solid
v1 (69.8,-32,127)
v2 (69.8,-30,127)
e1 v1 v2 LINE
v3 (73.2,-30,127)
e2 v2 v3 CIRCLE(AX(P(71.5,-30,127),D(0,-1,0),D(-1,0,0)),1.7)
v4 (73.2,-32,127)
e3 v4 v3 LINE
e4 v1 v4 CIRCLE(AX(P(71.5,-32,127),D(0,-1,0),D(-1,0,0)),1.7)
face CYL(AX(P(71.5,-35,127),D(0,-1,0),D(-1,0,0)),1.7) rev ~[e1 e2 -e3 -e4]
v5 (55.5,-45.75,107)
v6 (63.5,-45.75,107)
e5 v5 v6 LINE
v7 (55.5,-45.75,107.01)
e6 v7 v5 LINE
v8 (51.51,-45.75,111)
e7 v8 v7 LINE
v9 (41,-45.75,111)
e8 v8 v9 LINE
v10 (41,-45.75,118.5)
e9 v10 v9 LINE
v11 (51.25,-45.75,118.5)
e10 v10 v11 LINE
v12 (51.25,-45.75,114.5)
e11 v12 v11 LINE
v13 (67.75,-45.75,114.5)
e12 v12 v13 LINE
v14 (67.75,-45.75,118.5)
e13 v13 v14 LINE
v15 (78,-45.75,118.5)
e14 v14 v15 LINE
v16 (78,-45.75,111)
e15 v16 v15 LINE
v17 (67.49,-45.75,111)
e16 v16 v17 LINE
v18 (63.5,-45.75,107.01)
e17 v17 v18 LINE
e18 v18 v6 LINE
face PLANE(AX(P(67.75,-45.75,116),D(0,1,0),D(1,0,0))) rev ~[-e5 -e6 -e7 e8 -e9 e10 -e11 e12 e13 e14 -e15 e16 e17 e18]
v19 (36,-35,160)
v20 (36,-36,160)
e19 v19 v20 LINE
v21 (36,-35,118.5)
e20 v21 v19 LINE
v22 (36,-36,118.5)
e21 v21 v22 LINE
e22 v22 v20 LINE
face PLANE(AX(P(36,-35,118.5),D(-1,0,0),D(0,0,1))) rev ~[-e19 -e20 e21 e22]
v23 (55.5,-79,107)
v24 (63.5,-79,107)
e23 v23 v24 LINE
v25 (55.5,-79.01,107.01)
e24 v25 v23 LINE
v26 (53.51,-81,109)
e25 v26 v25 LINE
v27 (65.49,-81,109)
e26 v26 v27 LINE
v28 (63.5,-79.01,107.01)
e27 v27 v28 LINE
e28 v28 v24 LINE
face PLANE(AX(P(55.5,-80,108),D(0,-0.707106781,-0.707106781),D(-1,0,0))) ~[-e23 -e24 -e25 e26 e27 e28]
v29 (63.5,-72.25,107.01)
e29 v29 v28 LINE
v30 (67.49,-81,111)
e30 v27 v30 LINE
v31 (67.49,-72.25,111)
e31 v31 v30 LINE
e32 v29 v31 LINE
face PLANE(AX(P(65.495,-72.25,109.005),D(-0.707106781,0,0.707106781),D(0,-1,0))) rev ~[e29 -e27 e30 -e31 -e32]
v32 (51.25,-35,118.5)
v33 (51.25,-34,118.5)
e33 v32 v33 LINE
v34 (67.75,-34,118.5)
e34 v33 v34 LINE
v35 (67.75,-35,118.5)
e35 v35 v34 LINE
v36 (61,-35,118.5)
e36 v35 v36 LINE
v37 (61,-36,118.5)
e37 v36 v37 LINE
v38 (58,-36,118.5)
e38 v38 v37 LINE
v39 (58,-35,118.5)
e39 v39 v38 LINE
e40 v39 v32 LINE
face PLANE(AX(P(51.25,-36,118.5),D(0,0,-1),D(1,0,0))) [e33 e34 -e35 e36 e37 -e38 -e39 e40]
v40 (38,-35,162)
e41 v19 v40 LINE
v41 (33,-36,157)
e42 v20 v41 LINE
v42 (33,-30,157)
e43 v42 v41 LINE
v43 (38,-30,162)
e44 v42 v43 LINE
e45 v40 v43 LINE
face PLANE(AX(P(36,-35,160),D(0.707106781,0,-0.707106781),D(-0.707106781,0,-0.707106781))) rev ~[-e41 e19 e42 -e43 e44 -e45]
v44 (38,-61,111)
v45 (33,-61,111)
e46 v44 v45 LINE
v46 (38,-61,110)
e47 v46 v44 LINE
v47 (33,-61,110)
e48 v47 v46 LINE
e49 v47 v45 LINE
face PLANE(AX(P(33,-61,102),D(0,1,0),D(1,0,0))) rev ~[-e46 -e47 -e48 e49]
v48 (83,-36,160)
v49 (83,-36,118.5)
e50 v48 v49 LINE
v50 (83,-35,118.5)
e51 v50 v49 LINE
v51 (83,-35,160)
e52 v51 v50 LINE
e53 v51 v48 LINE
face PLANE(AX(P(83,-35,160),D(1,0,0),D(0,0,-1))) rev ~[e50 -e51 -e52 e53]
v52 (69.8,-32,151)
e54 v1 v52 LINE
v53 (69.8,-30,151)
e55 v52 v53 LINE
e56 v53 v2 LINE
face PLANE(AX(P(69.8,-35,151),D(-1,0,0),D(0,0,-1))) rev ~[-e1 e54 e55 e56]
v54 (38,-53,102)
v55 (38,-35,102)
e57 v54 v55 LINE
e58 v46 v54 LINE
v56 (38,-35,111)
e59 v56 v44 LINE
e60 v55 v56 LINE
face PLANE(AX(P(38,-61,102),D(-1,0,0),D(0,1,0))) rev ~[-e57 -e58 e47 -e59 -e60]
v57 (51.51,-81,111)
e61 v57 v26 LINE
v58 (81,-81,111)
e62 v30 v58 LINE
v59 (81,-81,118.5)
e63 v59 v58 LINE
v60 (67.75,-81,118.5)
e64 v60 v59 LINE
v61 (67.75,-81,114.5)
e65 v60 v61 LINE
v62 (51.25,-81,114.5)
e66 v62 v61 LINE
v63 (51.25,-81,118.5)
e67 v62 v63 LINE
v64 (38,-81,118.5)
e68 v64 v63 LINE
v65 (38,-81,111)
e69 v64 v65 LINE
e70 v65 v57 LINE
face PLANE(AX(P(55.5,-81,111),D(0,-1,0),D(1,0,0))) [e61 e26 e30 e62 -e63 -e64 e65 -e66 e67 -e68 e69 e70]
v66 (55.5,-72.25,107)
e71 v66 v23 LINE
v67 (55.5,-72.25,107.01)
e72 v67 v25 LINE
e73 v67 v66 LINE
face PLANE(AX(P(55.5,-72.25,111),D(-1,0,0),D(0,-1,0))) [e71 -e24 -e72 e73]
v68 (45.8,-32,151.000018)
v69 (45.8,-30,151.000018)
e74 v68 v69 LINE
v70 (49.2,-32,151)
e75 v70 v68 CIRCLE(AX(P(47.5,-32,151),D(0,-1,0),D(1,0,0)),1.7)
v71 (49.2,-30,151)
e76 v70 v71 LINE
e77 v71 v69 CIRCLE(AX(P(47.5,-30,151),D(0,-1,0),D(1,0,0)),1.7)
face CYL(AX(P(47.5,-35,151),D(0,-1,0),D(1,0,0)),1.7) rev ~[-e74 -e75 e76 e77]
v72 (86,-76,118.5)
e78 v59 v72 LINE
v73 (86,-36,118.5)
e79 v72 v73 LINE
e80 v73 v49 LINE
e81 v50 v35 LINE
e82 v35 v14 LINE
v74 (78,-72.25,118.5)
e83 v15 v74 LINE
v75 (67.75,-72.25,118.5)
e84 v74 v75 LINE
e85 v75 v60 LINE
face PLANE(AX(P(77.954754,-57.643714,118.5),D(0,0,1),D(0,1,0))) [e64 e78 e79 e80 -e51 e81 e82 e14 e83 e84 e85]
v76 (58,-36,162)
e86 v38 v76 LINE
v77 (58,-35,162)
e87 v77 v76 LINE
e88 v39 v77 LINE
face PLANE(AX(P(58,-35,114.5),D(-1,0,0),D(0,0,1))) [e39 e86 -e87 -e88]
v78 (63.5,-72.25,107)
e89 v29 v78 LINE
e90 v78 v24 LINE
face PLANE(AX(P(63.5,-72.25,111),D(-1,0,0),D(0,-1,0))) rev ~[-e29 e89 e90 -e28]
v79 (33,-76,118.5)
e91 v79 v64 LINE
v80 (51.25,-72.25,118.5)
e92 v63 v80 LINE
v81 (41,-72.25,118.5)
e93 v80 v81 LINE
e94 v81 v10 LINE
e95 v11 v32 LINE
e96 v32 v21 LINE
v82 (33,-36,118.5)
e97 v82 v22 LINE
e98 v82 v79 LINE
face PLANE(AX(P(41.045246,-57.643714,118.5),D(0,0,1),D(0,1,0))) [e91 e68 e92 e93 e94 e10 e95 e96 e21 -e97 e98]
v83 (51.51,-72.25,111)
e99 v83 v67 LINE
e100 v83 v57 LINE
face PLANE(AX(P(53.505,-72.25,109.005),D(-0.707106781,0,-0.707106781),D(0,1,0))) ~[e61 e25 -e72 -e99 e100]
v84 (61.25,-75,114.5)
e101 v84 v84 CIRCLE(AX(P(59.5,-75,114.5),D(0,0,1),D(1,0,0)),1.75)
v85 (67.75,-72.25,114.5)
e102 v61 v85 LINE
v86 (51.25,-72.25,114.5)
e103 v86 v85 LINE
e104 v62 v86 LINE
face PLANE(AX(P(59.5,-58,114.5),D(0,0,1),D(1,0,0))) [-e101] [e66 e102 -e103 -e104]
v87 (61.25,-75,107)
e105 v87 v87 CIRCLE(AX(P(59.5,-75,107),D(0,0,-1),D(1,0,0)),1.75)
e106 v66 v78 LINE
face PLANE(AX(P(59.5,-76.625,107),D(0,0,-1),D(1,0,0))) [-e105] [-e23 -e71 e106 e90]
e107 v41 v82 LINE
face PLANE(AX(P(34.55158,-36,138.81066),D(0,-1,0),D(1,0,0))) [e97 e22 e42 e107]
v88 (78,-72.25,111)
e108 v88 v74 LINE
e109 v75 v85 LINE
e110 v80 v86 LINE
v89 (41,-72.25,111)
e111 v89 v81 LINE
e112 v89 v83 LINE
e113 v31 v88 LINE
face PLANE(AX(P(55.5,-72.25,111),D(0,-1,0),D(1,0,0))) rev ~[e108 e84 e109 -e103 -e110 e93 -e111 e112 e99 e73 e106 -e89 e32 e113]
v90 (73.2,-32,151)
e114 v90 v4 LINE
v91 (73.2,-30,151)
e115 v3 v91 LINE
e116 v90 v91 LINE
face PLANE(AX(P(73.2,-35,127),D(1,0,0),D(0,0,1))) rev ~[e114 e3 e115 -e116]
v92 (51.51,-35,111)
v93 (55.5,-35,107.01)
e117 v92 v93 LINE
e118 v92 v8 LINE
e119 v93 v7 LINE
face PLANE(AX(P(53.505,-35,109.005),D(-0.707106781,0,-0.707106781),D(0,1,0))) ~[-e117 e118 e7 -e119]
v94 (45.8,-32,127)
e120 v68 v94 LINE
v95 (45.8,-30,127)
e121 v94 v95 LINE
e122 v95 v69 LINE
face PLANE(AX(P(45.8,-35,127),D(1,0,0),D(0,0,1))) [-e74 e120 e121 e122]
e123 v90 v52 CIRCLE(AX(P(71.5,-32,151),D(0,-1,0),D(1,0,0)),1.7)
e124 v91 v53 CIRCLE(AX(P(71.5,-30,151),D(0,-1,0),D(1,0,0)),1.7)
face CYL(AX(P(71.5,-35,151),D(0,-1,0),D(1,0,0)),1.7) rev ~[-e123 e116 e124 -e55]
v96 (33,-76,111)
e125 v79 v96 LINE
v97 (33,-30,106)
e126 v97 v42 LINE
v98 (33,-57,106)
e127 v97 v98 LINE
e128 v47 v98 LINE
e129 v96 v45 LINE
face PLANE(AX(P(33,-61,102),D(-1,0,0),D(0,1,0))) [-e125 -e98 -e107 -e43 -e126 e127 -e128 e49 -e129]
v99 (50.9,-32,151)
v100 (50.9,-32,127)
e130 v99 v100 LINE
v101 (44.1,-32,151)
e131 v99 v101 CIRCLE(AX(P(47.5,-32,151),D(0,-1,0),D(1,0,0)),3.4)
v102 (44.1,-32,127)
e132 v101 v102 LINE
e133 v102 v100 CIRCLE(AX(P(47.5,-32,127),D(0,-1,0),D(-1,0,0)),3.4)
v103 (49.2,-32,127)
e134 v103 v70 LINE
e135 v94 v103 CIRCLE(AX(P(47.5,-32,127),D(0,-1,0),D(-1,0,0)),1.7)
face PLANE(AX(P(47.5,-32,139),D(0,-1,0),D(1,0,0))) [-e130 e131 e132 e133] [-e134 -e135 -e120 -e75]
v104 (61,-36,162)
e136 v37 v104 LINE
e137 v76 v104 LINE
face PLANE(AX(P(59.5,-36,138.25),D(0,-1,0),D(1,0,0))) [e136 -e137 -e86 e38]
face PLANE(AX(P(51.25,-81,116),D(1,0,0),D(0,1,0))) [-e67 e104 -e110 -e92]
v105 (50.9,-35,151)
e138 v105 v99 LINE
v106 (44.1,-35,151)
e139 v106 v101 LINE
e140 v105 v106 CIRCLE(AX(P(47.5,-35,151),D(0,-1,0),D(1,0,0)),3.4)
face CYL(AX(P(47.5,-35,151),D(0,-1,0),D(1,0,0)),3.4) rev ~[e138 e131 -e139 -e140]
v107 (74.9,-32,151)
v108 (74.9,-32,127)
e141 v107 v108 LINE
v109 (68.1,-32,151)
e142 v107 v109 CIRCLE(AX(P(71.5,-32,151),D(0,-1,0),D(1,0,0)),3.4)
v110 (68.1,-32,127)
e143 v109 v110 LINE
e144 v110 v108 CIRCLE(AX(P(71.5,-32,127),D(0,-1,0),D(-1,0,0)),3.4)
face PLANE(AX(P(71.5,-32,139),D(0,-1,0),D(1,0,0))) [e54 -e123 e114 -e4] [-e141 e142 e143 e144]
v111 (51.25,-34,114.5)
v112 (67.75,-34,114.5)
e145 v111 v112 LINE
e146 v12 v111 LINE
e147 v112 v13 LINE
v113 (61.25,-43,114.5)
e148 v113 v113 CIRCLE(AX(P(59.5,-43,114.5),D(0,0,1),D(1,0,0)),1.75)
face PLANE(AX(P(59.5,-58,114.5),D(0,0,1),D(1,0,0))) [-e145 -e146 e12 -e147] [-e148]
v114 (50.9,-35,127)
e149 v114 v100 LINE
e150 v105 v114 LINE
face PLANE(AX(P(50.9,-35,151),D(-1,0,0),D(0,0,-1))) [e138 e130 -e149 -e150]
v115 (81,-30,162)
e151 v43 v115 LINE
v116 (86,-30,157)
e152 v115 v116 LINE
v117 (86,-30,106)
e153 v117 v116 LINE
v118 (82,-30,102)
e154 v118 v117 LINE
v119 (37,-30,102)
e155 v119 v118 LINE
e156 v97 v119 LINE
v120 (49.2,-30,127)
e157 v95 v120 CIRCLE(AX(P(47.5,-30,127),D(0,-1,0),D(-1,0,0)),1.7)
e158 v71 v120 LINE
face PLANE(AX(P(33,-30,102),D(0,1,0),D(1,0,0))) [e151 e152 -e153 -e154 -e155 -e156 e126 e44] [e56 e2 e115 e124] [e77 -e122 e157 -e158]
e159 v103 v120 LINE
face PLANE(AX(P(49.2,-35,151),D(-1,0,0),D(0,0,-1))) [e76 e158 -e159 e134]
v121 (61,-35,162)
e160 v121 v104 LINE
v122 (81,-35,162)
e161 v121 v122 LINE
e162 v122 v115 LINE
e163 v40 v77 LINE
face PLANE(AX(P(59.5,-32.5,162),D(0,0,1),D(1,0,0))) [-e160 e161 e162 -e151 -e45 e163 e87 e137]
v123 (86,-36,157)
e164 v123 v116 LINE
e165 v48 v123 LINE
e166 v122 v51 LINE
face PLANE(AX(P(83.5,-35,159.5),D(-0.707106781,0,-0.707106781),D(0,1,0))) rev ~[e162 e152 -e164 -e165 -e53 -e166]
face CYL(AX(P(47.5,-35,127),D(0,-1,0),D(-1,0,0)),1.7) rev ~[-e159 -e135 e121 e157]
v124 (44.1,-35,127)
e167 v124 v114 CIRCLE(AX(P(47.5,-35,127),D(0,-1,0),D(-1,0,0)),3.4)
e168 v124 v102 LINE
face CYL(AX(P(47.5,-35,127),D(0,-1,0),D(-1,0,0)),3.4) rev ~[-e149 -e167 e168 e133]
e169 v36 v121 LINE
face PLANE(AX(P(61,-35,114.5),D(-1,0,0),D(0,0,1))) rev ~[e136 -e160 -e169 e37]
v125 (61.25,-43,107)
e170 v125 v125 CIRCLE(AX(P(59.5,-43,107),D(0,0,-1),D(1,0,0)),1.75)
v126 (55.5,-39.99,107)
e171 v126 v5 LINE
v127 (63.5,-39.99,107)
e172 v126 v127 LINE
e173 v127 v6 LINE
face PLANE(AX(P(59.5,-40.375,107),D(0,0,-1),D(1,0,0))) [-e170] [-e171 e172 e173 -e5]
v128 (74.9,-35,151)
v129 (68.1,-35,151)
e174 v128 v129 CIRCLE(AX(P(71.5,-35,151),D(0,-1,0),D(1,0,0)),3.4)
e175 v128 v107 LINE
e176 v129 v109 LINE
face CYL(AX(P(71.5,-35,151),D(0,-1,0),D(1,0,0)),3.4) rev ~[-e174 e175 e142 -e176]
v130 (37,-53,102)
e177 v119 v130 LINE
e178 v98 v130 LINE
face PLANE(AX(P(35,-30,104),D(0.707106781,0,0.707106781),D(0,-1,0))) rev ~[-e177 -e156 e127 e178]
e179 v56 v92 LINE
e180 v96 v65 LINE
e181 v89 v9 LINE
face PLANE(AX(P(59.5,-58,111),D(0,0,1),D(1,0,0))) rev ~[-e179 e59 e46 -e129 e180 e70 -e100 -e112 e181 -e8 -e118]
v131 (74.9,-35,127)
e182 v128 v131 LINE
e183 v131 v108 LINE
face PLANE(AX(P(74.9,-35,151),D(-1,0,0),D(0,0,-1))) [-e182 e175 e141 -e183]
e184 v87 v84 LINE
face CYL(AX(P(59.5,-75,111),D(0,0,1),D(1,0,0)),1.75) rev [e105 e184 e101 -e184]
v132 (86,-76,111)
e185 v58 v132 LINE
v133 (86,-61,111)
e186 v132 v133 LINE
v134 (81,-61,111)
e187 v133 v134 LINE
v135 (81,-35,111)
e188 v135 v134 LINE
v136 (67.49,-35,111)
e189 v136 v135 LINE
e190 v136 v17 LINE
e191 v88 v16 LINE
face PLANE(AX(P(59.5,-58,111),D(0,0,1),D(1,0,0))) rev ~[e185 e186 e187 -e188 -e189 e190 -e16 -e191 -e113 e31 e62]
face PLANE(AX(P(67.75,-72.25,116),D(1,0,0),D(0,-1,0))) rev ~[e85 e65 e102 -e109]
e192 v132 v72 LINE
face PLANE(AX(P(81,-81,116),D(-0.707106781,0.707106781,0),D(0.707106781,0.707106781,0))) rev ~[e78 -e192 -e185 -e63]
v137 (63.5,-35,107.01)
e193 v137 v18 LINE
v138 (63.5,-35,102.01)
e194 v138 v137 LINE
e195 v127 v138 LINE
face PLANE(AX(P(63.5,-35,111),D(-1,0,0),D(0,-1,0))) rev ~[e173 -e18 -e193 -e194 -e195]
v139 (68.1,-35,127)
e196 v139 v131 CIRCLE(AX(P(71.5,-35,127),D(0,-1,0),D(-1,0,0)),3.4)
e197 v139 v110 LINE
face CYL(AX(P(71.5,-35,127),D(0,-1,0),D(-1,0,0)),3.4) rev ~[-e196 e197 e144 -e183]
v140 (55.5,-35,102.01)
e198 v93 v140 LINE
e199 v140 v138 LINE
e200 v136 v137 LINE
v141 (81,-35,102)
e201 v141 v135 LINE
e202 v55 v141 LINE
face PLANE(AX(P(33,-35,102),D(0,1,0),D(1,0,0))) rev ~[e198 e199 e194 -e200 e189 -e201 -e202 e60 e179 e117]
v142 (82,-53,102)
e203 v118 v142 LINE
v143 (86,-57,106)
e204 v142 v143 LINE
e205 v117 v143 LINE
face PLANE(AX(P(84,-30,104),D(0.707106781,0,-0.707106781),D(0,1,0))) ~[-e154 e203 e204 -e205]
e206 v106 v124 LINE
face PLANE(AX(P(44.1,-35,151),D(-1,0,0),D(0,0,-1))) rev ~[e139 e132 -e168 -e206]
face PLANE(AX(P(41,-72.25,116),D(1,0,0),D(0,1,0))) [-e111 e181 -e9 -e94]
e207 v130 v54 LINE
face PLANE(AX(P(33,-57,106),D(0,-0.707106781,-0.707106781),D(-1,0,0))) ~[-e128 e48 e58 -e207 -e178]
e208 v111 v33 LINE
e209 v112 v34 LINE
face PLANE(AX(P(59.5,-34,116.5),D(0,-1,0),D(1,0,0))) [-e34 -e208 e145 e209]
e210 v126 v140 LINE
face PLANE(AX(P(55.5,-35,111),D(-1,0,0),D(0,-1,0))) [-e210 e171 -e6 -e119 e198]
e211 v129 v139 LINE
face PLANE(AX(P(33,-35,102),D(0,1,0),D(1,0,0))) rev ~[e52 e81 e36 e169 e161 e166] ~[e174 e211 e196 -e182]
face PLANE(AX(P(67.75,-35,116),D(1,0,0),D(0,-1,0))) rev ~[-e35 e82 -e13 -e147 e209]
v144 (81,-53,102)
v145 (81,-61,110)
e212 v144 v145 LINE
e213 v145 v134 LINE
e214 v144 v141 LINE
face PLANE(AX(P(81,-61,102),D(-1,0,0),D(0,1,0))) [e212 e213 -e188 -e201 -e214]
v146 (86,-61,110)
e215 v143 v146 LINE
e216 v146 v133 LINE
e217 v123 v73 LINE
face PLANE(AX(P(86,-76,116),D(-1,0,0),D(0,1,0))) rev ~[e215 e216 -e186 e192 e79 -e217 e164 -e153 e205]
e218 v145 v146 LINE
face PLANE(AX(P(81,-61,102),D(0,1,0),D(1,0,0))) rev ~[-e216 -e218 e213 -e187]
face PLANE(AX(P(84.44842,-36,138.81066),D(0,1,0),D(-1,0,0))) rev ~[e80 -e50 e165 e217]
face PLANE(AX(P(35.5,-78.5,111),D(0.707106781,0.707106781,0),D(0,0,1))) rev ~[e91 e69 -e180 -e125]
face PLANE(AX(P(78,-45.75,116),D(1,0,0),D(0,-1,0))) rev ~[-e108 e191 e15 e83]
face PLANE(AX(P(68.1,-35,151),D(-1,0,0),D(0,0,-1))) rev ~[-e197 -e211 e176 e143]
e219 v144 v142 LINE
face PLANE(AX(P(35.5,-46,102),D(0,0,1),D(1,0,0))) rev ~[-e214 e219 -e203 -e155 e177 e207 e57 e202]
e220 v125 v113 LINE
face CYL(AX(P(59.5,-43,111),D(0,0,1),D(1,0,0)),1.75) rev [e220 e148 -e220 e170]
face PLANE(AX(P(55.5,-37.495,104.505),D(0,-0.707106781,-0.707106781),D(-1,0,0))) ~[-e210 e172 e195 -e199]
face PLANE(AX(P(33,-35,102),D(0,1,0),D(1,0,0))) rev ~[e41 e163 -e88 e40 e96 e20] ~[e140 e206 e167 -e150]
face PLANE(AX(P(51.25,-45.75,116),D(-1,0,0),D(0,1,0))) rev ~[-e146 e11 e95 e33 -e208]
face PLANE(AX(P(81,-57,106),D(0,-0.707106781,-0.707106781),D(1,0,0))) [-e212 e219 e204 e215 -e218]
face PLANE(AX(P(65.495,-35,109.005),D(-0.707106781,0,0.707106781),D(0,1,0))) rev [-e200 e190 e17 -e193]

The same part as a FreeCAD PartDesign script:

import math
import FreeCAD as App
import Part
import Sketcher
from FreeCAD import Vector
Q = App.Units.Quantity


def edges_at(feature, points):
    """Names of the edges that pass closest to the given points."""
    edges = feature.Shape.Edges
    near = lambda p: min(range(len(edges)), key=lambda i: edges[i].distToShape(Part.Vertex(*p))[0])
    return sorted({f"Edge{near(p) + 1}" for p in points})

doc = App.newDocument("Part")
body = doc.addObject("PartDesign::Body", "Body")
body.AllowCompound = True

# Sketch on XY plane
sketch1 = doc.addObject("Sketcher::SketchObject", "Sketch")
body.addObject(sketch1)
sketch1.AttachmentSupport = (doc.XY_Plane, [""])
sketch1.MapMode = "FlatFace"
sketch1.AttachmentOffset = App.Placement(Vector(0, 0, 116), App.Rotation())
sketch1.addGeometry([
    Part.LineSegment(Vector(33, -76, 0), Vector(38, -81, 0)),  # 0
    Part.LineSegment(Vector(38, -81, 0), Vector(51, -81, 0)),  # 1
    Part.LineSegment(Vector(51, -81, 0), Vector(51, -72, 0)),  # 2
    Part.LineSegment(Vector(51, -72, 0), Vector(41, -72, 0)),  # 3
    Part.LineSegment(Vector(41, -72, 0), Vector(41, -46, 0)),  # 4
    Part.LineSegment(Vector(41, -46, 0), Vector(51, -46, 0)),  # 5
    Part.LineSegment(Vector(51, -46, 0), Vector(51, -35, 0)),  # 6
    Part.LineSegment(Vector(51, -35, 0), Vector(33, -35, 0)),  # 7
    Part.LineSegment(Vector(33, -35, 0), Vector(33, -76, 0)),  # 8
    Part.LineSegment(Vector(81, -81, 0), Vector(86, -76, 0)),  # 9
    Part.LineSegment(Vector(86, -76, 0), Vector(86, -35, 0)),  # 10
    Part.LineSegment(Vector(86, -35, 0), Vector(68, -35, 0)),  # 11
    Part.LineSegment(Vector(68, -35, 0), Vector(68, -46, 0)),  # 12
    Part.LineSegment(Vector(68, -46, 0), Vector(78, -46, 0)),  # 13
    Part.LineSegment(Vector(78, -46, 0), Vector(78, -72, 0)),  # 14
    Part.LineSegment(Vector(78, -72, 0), Vector(68, -72, 0)),  # 15
    Part.LineSegment(Vector(68, -72, 0), Vector(68, -81, 0)),  # 16
    Part.LineSegment(Vector(68, -81, 0), Vector(81, -81, 0)),  # 17
], False)
sketch1.addConstraint([
    Sketcher.Constraint("Coincident", 0, 2, 1, 1),
    Sketcher.Constraint("Coincident", 1, 2, 2, 1),
    Sketcher.Constraint("Coincident", 2, 2, 3, 1),
    Sketcher.Constraint("Coincident", 3, 2, 4, 1),
    Sketcher.Constraint("Coincident", 4, 2, 5, 1),
    Sketcher.Constraint("Coincident", 5, 2, 6, 1),
    Sketcher.Constraint("Coincident", 6, 2, 7, 1),
    Sketcher.Constraint("Coincident", 7, 2, 8, 1),
    Sketcher.Constraint("Coincident", 8, 2, 0, 1),
    Sketcher.Constraint("Coincident", 9, 2, 10, 1),
    Sketcher.Constraint("Coincident", 10, 2, 11, 1),
    Sketcher.Constraint("Coincident", 11, 2, 12, 1),
    Sketcher.Constraint("Coincident", 12, 2, 13, 1),
    Sketcher.Constraint("Coincident", 13, 2, 14, 1),
    Sketcher.Constraint("Coincident", 14, 2, 15, 1),
    Sketcher.Constraint("Coincident", 15, 2, 16, 1),
    Sketcher.Constraint("Coincident", 16, 2, 17, 1),
    Sketcher.Constraint("Coincident", 17, 2, 9, 1),
    Sketcher.Constraint("Horizontal", 1),
    Sketcher.Constraint("Vertical", 2),
    Sketcher.Constraint("Horizontal", 3),
    Sketcher.Constraint("Vertical", 4),
    Sketcher.Constraint("Horizontal", 5),
    Sketcher.Constraint("Vertical", 6),
    Sketcher.Constraint("Horizontal", 7),
    Sketcher.Constraint("Vertical", 8),
    Sketcher.Constraint("Vertical", 10),
    Sketcher.Constraint("Horizontal", 11),
    Sketcher.Constraint("Vertical", 12),
    Sketcher.Constraint("Horizontal", 13),
    Sketcher.Constraint("Vertical", 14),
    Sketcher.Constraint("Horizontal", 15),
    Sketcher.Constraint("Vertical", 16),
    Sketcher.Constraint("Horizontal", 17),
    Sketcher.Constraint("Perpendicular", 0, 9),
    Sketcher.Constraint("Horizontal", 8, 2, 9, 2),
    Sketcher.Constraint("Horizontal", 7, 2, 10, 2),
    Sketcher.Constraint("Horizontal", 5, 2, 12, 2),
    Sketcher.Constraint("Horizontal", 3, 2, 14, 2),
    Sketcher.Constraint("Horizontal", 1, 2, 16, 2),
    Sketcher.Constraint("Vertical", 2, 2, 5, 2),
    Sketcher.Constraint("Vertical", 12, 2, 15, 2),
    Sketcher.Constraint("Equal", 7, 11),
    Sketcher.Constraint("Equal", 5, 13),
    Sketcher.Constraint("Equal", 1, 17),
    Sketcher.Constraint("DistanceY", 8, 2, 8, 1, Q("41 mm")),
    Sketcher.Constraint("DistanceY", 4, 1, 4, 2, Q("26.5 mm")),
    Sketcher.Constraint("DistanceX", -1, 1, 0, 2, Q("38 mm")),
    Sketcher.Constraint("DistanceY", 0, 2, -1, 1, Q("81 mm")),
    Sketcher.Constraint("DistanceX", -1, 1, 3, 2, Q("41 mm")),
    Sketcher.Constraint("DistanceY", 6, 2, -1, 1, Q("35 mm")),
    Sketcher.Constraint("DistanceX", -1, 1, 9, 2, Q("86 mm")),
    Sketcher.Constraint("DistanceX", 1, 1, 1, 2, Q("13.25 mm")),
    Sketcher.Constraint("DistanceY", 2, 1, 2, 2, Q("8.75 mm")),
])
pad1 = doc.addObject("PartDesign::Pad", "Pad")
body.addObject(pad1)
pad1.Profile = sketch1
pad1.Length = 2.5
body2 = doc.addObject("PartDesign::Body", "Body001")

# Sketch on XY plane
sketch2 = doc.addObject("Sketcher::SketchObject", "Sketch001")
body2.addObject(sketch2)
sketch2.AttachmentSupport = (doc.getObject("XY_Plane001"), [""])
sketch2.MapMode = "FlatFace"
sketch2.AttachmentOffset = App.Placement(Vector(0, 0, 111), App.Rotation())
sketch2.addGeometry([
    Part.LineSegment(Vector(33, -30, 0), Vector(33, -76, 0)),
    Part.LineSegment(Vector(33, -76, 0), Vector(86, -76, 0)),
    Part.LineSegment(Vector(86, -76, 0), Vector(86, -30, 0)),
    Part.LineSegment(Vector(86, -30, 0), Vector(33, -30, 0)),
], False)
sketch2.addConstraint([
    Sketcher.Constraint("Coincident", 0, 2, 1, 1),
    Sketcher.Constraint("Coincident", 1, 2, 2, 1),
    Sketcher.Constraint("Coincident", 2, 2, 3, 1),
    Sketcher.Constraint("Coincident", 3, 2, 0, 1),
    Sketcher.Constraint("Vertical", 0),
    Sketcher.Constraint("Horizontal", 1),
    Sketcher.Constraint("Vertical", 2),
    Sketcher.Constraint("Horizontal", 3),
    Sketcher.Constraint("DistanceX", 1, 1, 1, 2, Q("53 mm")),
    Sketcher.Constraint("DistanceY", 0, 2, 0, 1, Q("46 mm")),
    Sketcher.Constraint("DistanceX", -1, 1, 0, 2, Q("33 mm")),
    Sketcher.Constraint("DistanceY", 0, 2, -1, 1, Q("76 mm")),
])
pad2 = doc.addObject("PartDesign::Pad", "Pad001")
body2.addObject(pad2)
pad2.Profile = sketch2
pad2.Length = 5
body3 = doc.addObject("PartDesign::Body", "Body002")

# Sketch on XY plane
sketch3 = doc.addObject("Sketcher::SketchObject", "Sketch002")
body3.addObject(sketch3)
sketch3.AttachmentSupport = (doc.getObject("XY_Plane002"), [""])
sketch3.MapMode = "FlatFace"
sketch3.AttachmentOffset = App.Placement(Vector(0, 0, 102), App.Rotation())
sketch3.addGeometry([
    Part.LineSegment(Vector(81, -26, 0), Vector(81, -56, 0)),
    Part.LineSegment(Vector(81, -56, 0), Vector(86, -56, 0)),
    Part.LineSegment(Vector(86, -56, 0), Vector(86, -26, 0)),
    Part.LineSegment(Vector(86, -26, 0), Vector(81, -26, 0)),
], False)
sketch3.addConstraint([
    Sketcher.Constraint("Coincident", 0, 2, 1, 1),
    Sketcher.Constraint("Coincident", 1, 2, 2, 1),
    Sketcher.Constraint("Coincident", 2, 2, 3, 1),
    Sketcher.Constraint("Coincident", 3, 2, 0, 1),
    Sketcher.Constraint("Vertical", 0),
    Sketcher.Constraint("Horizontal", 1),
    Sketcher.Constraint("Vertical", 2),
    Sketcher.Constraint("Horizontal", 3),
    Sketcher.Constraint("DistanceX", 1, 1, 1, 2, Q("5 mm")),
    Sketcher.Constraint("DistanceY", 0, 2, 0, 1, Q("30 mm")),
    Sketcher.Constraint("DistanceX", -1, 1, 0, 2, Q("81 mm")),
    Sketcher.Constraint("DistanceY", 0, 2, -1, 1, Q("56 mm")),
])
pad3 = doc.addObject("PartDesign::Pad", "Pad002")
body3.addObject(pad3)
pad3.Profile = sketch3
pad3.Length = 12
body4 = doc.addObject("PartDesign::Body", "Body003")

# Sketch on XY plane
sketch4 = doc.addObject("Sketcher::SketchObject", "Sketch003")
body4.addObject(sketch4)
sketch4.AttachmentSupport = (doc.getObject("XY_Plane003"), [""])
sketch4.MapMode = "FlatFace"
sketch4.AttachmentOffset = App.Placement(Vector(0, 0, 102), App.Rotation())
sketch4.addGeometry([
    Part.LineSegment(Vector(33, -26, 0), Vector(33, -56, 0)),
    Part.LineSegment(Vector(33, -56, 0), Vector(38, -56, 0)),
    Part.LineSegment(Vector(38, -56, 0), Vector(38, -26, 0)),
    Part.LineSegment(Vector(38, -26, 0), Vector(33, -26, 0)),
], False)
sketch4.addConstraint([
    Sketcher.Constraint("Coincident", 0, 2, 1, 1),
    Sketcher.Constraint("Coincident", 1, 2, 2, 1),
    Sketcher.Constraint("Coincident", 2, 2, 3, 1),
    Sketcher.Constraint("Coincident", 3, 2, 0, 1),
    Sketcher.Constraint("Vertical", 0),
    Sketcher.Constraint("Horizontal", 1),
    Sketcher.Constraint("Vertical", 2),
    Sketcher.Constraint("Horizontal", 3),
    Sketcher.Constraint("DistanceX", 1, 1, 1, 2, Q("5 mm")),
    Sketcher.Constraint("DistanceY", 0, 2, 0, 1, Q("30 mm")),
    Sketcher.Constraint("DistanceX", -1, 1, 0, 2, Q("33 mm")),
    Sketcher.Constraint("DistanceY", 0, 2, -1, 1, Q("56 mm")),
])
pad4 = doc.addObject("PartDesign::Pad", "Pad003")
body4.addObject(pad4)
pad4.Profile = sketch4
pad4.Length = 12
body5 = doc.addObject("PartDesign::Body", "Body004")

# Sketch on XY plane
sketch5 = doc.addObject("Sketcher::SketchObject", "Sketch004")
body5.addObject(sketch5)
sketch5.AttachmentSupport = (doc.getObject("XY_Plane004"), [""])
sketch5.MapMode = "FlatFace"
sketch5.AttachmentOffset = App.Placement(Vector(0, 0, 102), App.Rotation())
sketch5.addGeometry([
    Part.LineSegment(Vector(33, -25, 0), Vector(33, -30, 0)),
    Part.LineSegment(Vector(33, -30, 0), Vector(86, -30, 0)),
    Part.LineSegment(Vector(86, -30, 0), Vector(86, -25, 0)),
    Part.LineSegment(Vector(86, -25, 0), Vector(33, -25, 0)),
], False)
sketch5.addConstraint([
    Sketcher.Constraint("Coincident", 0, 2, 1, 1),
    Sketcher.Constraint("Coincident", 1, 2, 2, 1),
    Sketcher.Constraint("Coincident", 2, 2, 3, 1),
    Sketcher.Constraint("Coincident", 3, 2, 0, 1),
    Sketcher.Constraint("Vertical", 0),
    Sketcher.Constraint("Horizontal", 1),
    Sketcher.Constraint("Vertical", 2),
    Sketcher.Constraint("Horizontal", 3),
    Sketcher.Constraint("DistanceX", 1, 1, 1, 2, Q("53 mm")),
    Sketcher.Constraint("DistanceY", 0, 2, 0, 1, Q("5 mm")),
    Sketcher.Constraint("DistanceX", -1, 1, 0, 2, Q("33 mm")),
    Sketcher.Constraint("DistanceY", 0, 2, -1, 1, Q("30 mm")),
])
pad5 = doc.addObject("PartDesign::Pad", "Pad004")
body5.addObject(pad5)
pad5.Profile = sketch5
pad5.Length = 60
doc.recompute()

boolean = doc.addObject("PartDesign::Boolean", "Boolean")
body5.addObject(boolean)
boolean.Type = "Fuse"
boolean.addObjects([body2])
doc.recompute()

boolean2 = doc.addObject("PartDesign::Boolean", "Boolean001")
body5.addObject(boolean2)
boolean2.Type = "Fuse"
boolean2.addObjects([body3])
doc.recompute()

boolean3 = doc.addObject("PartDesign::Boolean", "Boolean002")
body5.addObject(boolean3)
boolean3.Type = "Fuse"
boolean3.addObjects([body4])
body6 = doc.addObject("PartDesign::Body", "Body005")
doc.recompute()

body5.Placement = App.Placement(Vector(0, -5, 0), App.Rotation(Vector(0, 0, 1), 0))
boolean4 = doc.addObject("PartDesign::Boolean", "Boolean003")
body6.addObject(boolean4)
boolean4.Type = "Fuse"
boolean4.addObjects([body5])

# Sketch on XY plane
sketch6 = doc.addObject("Sketcher::SketchObject", "Sketch005")
body6.addObject(sketch6)
sketch6.AttachmentSupport = (doc.getObject("XY_Plane005"), [""])
sketch6.MapMode = "FlatFace"
sketch6.AttachmentOffset = App.Placement(Vector(0, 0, 116), App.Rotation())
sketch6.addGeometry([
    Part.Circle(Vector(59.5, -75, 0), Vector(0, 0, 1), 1.8),
    Part.Circle(Vector(59.5, -43, 0), Vector(0, 0, 1), 1.8),
    Part.Circle(Vector(59.5, -59, 0), Vector(0, 0, 1), 13.2),
], False)
sketch6.addConstraint([
    Sketcher.Constraint("Equal", 0, 1),
    Sketcher.Constraint("Vertical", 0, 3, 1, 3),
    Sketcher.Constraint("Vertical", 1, 3, 2, 3),
    Sketcher.Constraint("Diameter", 0, Q("3.5 mm")),
    Sketcher.Constraint("Diameter", 2, Q("26.5 mm")),
    Sketcher.Constraint("DistanceY", 0, 3, -1, 1, Q("75 mm")),
    Sketcher.Constraint("DistanceY", 1, 3, -1, 1, Q("43 mm")),
    Sketcher.Constraint("DistanceY", 2, 3, -1, 1, Q("59 mm")),
    Sketcher.Constraint("DistanceX", -1, 1, 0, 3, Q("59.5 mm")),
])
pocket1 = doc.addObject("PartDesign::Pocket", "Pocket")
body6.addObject(pocket1)
pocket1.Profile = sketch6
pocket1.Length = 5
doc.recompute()

chamfer = doc.addObject("PartDesign::Chamfer", "Chamfer")
body6.addObject(chamfer)
chamfer.Base = (pocket1, edges_at(pocket1, [(83.5, -61, 102), (35.5, -61, 102)]))
chamfer.Size = 8
doc.recompute()

chamfer2 = doc.addObject("PartDesign::Chamfer", "Chamfer001")
body6.addObject(chamfer2)
chamfer2.Base = (chamfer, edges_at(chamfer, [(86, -41.5, 102), (33, -41.5, 102)]))
chamfer2.Size = 4

# Sketch on XY plane
sketch7 = doc.addObject("Sketcher::SketchObject", "Sketch006")
body6.addObject(sketch7)
sketch7.AttachmentSupport = (doc.getObject("XY_Plane005"), [""])
sketch7.MapMode = "FlatFace"
sketch7.AttachmentOffset = App.Placement(Vector(0, 0, 116), App.Rotation())
sketch7.addGeometry([
    Part.LineSegment(Vector(51, -35, 0), Vector(51, -81, 0)),
    Part.LineSegment(Vector(51, -81, 0), Vector(68, -81, 0)),
    Part.LineSegment(Vector(68, -81, 0), Vector(68, -35, 0)),
    Part.LineSegment(Vector(68, -35, 0), Vector(51, -35, 0)),
], False)
sketch7.addConstraint([
    Sketcher.Constraint("Coincident", 0, 2, 1, 1),
    Sketcher.Constraint("Coincident", 1, 2, 2, 1),
    Sketcher.Constraint("Coincident", 2, 2, 3, 1),
    Sketcher.Constraint("Coincident", 3, 2, 0, 1),
    Sketcher.Constraint("Vertical", 0),
    Sketcher.Constraint("Horizontal", 1),
    Sketcher.Constraint("Vertical", 2),
    Sketcher.Constraint("Horizontal", 3),
    Sketcher.Constraint("DistanceY", 0, 2, 0, 1, Q("46 mm")),
    Sketcher.Constraint("DistanceX", 1, 1, 1, 2, Q("16.5 mm")),
    Sketcher.Constraint("DistanceY", 0, 2, -1, 1, Q("81 mm")),
    Sketcher.Constraint("DistanceX", -1, 1, 0, 2, Q("51.25 mm")),
])
pocket2 = doc.addObject("PartDesign::Pocket", "Pocket001")
body6.addObject(pocket2)
pocket2.Profile = sketch7
pocket2.Length = 1.5
doc.recompute()

chamfer3 = doc.addObject("PartDesign::Chamfer", "Chamfer002")
body6.addObject(chamfer3)
chamfer3.Base = (pocket2, edges_at(pocket2, [(86, -81, 113.5), (33, -81, 113.5)]))
chamfer3.Size = 5
doc.recompute()

chamfer4 = doc.addObject("PartDesign::Chamfer", "Chamfer003")
body6.addObject(chamfer4)
chamfer4.Base = (chamfer3, edges_at(chamfer3, [(86, -32.5, 162), (33, -32.5, 162)]))
chamfer4.Size = 5

# Sketch on XZ plane
sketch8 = doc.addObject("Sketcher::SketchObject", "Sketch007")
body6.addObject(sketch8)
sketch8.AttachmentSupport = (doc.getObject("XZ_Plane005"), [""])
sketch8.MapMode = "FlatFace"
sketch8.AttachmentOffset = App.Placement(Vector(0, 0, 35), App.Rotation())
sketch8.addGeometry([
    Part.LineSegment(Vector(49.2, 127, 0), Vector(49.2, 151, 0)),  # 0
    Part.ArcOfCircle(Part.Circle(Vector(47.5, 151, 0), Vector(0, 0, 1), 1.7), math.radians(0), math.radians(180)),  # 1
    Part.LineSegment(Vector(45.8, 151, 0), Vector(45.8, 127, 0)),  # 2
    Part.ArcOfCircle(Part.Circle(Vector(47.5, 127, 0), Vector(0, 0, 1), 1.7), math.radians(180), math.radians(360)),  # 3
    Part.LineSegment(Vector(69.8, 151, 0), Vector(69.8, 127, 0)),  # 4
    Part.ArcOfCircle(Part.Circle(Vector(71.5, 127, 0), Vector(0, 0, 1), 1.7), math.radians(180), math.radians(360)),  # 5
    Part.LineSegment(Vector(73.2, 127, 0), Vector(73.2, 151, 0)),  # 6
    Part.ArcOfCircle(Part.Circle(Vector(71.5, 151, 0), Vector(0, 0, 1), 1.7), math.radians(0), math.radians(180)),  # 7
], False)
sketch8.addConstraint([
    Sketcher.Constraint("Tangent", 0, 2, 1, 1),
    Sketcher.Constraint("Coincident", 1, 2, 2, 1),
    Sketcher.Constraint("Tangent", 2, 2, 3, 1),
    Sketcher.Constraint("Tangent", 3, 2, 0, 1),
    Sketcher.Constraint("Tangent", 4, 2, 5, 1),
    Sketcher.Constraint("Tangent", 5, 2, 6, 1),
    Sketcher.Constraint("Tangent", 6, 2, 7, 1),
    Sketcher.Constraint("Tangent", 7, 2, 4, 1),
    Sketcher.Constraint("Vertical", 0),
    Sketcher.Constraint("Vertical", 2),
    Sketcher.Constraint("Vertical", 4),
    Sketcher.Constraint("Vertical", 6),
    Sketcher.Constraint("Equal", 3, 5),
    Sketcher.Constraint("Horizontal", 3, 3, 5, 3),
    Sketcher.Constraint("Horizontal", 1, 3, 7, 3),
    Sketcher.Constraint("Radius", 1, Q("1.7 mm")),
    Sketcher.Constraint("DistanceY", 0, 1, 0, 2, Q("24 mm")),
    Sketcher.Constraint("DistanceY", -1, 1, 1, 3, Q("151 mm")),
    Sketcher.Constraint("DistanceX", 3, 3, 5, 3, Q("24 mm")),
    Sketcher.Constraint("DistanceX", -1, 1, 1, 3, Q("47.5 mm")),
    Sketcher.Constraint("DistanceY", 2, 2, 2, 1, Q("24.000018 mm")),
])
pocket3 = doc.addObject("PartDesign::Pocket", "Pocket002")
body6.addObject(pocket3)
pocket3.Profile = sketch8
pocket3.Length = 5

# Sketch on XZ plane
sketch9 = doc.addObject("Sketcher::SketchObject", "Sketch008")
body6.addObject(sketch9)
sketch9.AttachmentSupport = (doc.getObject("XZ_Plane005"), [""])
sketch9.MapMode = "FlatFace"
sketch9.AttachmentOffset = App.Placement(Vector(0, 0, 35), App.Rotation())
sketch9.addGeometry([
    Part.ArcOfCircle(Part.Circle(Vector(47.5, 151, 0), Vector(0, 0, 1), 3.4), math.radians(0), math.radians(180)),  # 0
    Part.LineSegment(Vector(44.1, 151, 0), Vector(44.1, 127, 0)),  # 1
    Part.ArcOfCircle(Part.Circle(Vector(47.5, 127, 0), Vector(0, 0, 1), 3.4), math.radians(180), math.radians(360)),  # 2
    Part.LineSegment(Vector(50.9, 127, 0), Vector(50.9, 151, 0)),  # 3
    Part.ArcOfCircle(Part.Circle(Vector(71.5, 151, 0), Vector(0, 0, 1), 3.4), math.radians(0), math.radians(180)),  # 4
    Part.LineSegment(Vector(68.1, 151, 0), Vector(68.1, 127, 0)),  # 5
    Part.ArcOfCircle(Part.Circle(Vector(71.5, 127, 0), Vector(0, 0, 1), 3.4), math.radians(180), math.radians(360)),  # 6
    Part.LineSegment(Vector(74.9, 127, 0), Vector(74.9, 151, 0)),  # 7
], False)
sketch9.addConstraint([
    Sketcher.Constraint("Tangent", 0, 2, 1, 1),
    Sketcher.Constraint("Tangent", 1, 2, 2, 1),
    Sketcher.Constraint("Tangent", 2, 2, 3, 1),
    Sketcher.Constraint("Tangent", 3, 2, 0, 1),
    Sketcher.Constraint("Tangent", 4, 2, 5, 1),
    Sketcher.Constraint("Tangent", 5, 2, 6, 1),
    Sketcher.Constraint("Tangent", 6, 2, 7, 1),
    Sketcher.Constraint("Tangent", 7, 2, 4, 1),
    Sketcher.Constraint("Vertical", 1),
    Sketcher.Constraint("Vertical", 3),
    Sketcher.Constraint("Vertical", 5),
    Sketcher.Constraint("Vertical", 7),
    Sketcher.Constraint("Equal", 2, 4),
    Sketcher.Constraint("Horizontal", 0, 3, 4, 3),
    Sketcher.Constraint("Horizontal", 2, 3, 6, 3),
    Sketcher.Constraint("Radius", 0, Q("3.4 mm")),
    Sketcher.Constraint("DistanceY", 1, 2, 1, 1, Q("24 mm")),
    Sketcher.Constraint("DistanceY", -1, 1, 0, 3, Q("151 mm")),
    Sketcher.Constraint("DistanceX", 0, 3, 4, 3, Q("24 mm")),
    Sketcher.Constraint("DistanceX", -1, 1, 0, 3, Q("47.5 mm")),
])
pocket4 = doc.addObject("PartDesign::Pocket", "Pocket003")
body6.addObject(pocket4)
pocket4.Profile = sketch9
pocket4.Length = 3

# Sketch on XY plane
sketch10 = doc.addObject("Sketcher::SketchObject", "Sketch009")
body6.addObject(sketch10)
sketch10.AttachmentSupport = (doc.getObject("XY_Plane005"), [""])
sketch10.MapMode = "FlatFace"
sketch10.AttachmentOffset = App.Placement(Vector(0, 0, 116), App.Rotation())
sketch10.addGeometry([
    Part.LineSegment(Vector(41, -46, 0), Vector(41, -72, 0)),
    Part.LineSegment(Vector(41, -72, 0), Vector(78, -72, 0)),
    Part.LineSegment(Vector(78, -72, 0), Vector(78, -46, 0)),
    Part.LineSegment(Vector(78, -46, 0), Vector(41, -46, 0)),
], False)
sketch10.addConstraint([
    Sketcher.Constraint("Coincident", 0, 2, 1, 1),
    Sketcher.Constraint("Coincident", 1, 2, 2, 1),
    Sketcher.Constraint("Coincident", 2, 2, 3, 1),
    Sketcher.Constraint("Coincident", 3, 2, 0, 1),
    Sketcher.Constraint("Vertical", 0),
    Sketcher.Constraint("Horizontal", 1),
    Sketcher.Constraint("Vertical", 2),
    Sketcher.Constraint("Horizontal", 3),
    Sketcher.Constraint("DistanceX", 1, 1, 1, 2, Q("37 mm")),
    Sketcher.Constraint("DistanceY", 0, 2, 0, 1, Q("26.5 mm")),
    Sketcher.Constraint("DistanceX", -1, 1, 0, 2, Q("41 mm")),
    Sketcher.Constraint("DistanceY", 0, 2, -1, 1, Q("72.25 mm")),
])
pocket5 = doc.addObject("PartDesign::Pocket", "Pocket004")
body6.addObject(pocket5)
pocket5.Profile = sketch10
pocket5.Length = 5
doc.recompute()

boolean5 = doc.addObject("PartDesign::Boolean", "Boolean004")
body6.addObject(boolean5)
boolean5.Type = "Fuse"
boolean5.addObjects([body])

# Sketch on XZ plane
sketch11 = doc.addObject("Sketcher::SketchObject", "Sketch010")
body6.addObject(sketch11)
sketch11.AttachmentSupport = (doc.getObject("XZ_Plane005"), [""])
sketch11.MapMode = "FlatFace"
sketch11.AttachmentOffset = App.Placement(Vector(0, 0, 35), App.Rotation())
sketch11.addGeometry([
    Part.LineSegment(Vector(33, 118.5, 0), Vector(36, 118.5, 0)),  # 0
    Part.LineSegment(Vector(36, 118.5, 0), Vector(36, 160, 0)),  # 1
    Part.LineSegment(Vector(36, 160, 0), Vector(33, 157, 0)),  # 2
    Part.LineSegment(Vector(33, 157, 0), Vector(33, 118.5, 0)),  # 3
    Part.LineSegment(Vector(83, 118.5, 0), Vector(86, 118.5, 0)),  # 4
    Part.LineSegment(Vector(86, 118.5, 0), Vector(86, 157, 0)),  # 5
    Part.LineSegment(Vector(86, 157, 0), Vector(83, 160, 0)),  # 6
    Part.LineSegment(Vector(83, 160, 0), Vector(83, 118.5, 0)),  # 7
    Part.LineSegment(Vector(58, 162, 0), Vector(58, 114.5, 0)),  # 8
    Part.LineSegment(Vector(58, 114.5, 0), Vector(61, 114.5, 0)),  # 9
    Part.LineSegment(Vector(61, 114.5, 0), Vector(61, 162, 0)),  # 10
    Part.LineSegment(Vector(61, 162, 0), Vector(58, 162, 0)),  # 11
], False)
sketch11.addConstraint([
    Sketcher.Constraint("Coincident", 0, 2, 1, 1),
    Sketcher.Constraint("Coincident", 1, 2, 2, 1),
    Sketcher.Constraint("Coincident", 2, 2, 3, 1),
    Sketcher.Constraint("Coincident", 3, 2, 0, 1),
    Sketcher.Constraint("Coincident", 4, 2, 5, 1),
    Sketcher.Constraint("Coincident", 5, 2, 6, 1),
    Sketcher.Constraint("Coincident", 6, 2, 7, 1),
    Sketcher.Constraint("Coincident", 7, 2, 4, 1),
    Sketcher.Constraint("Coincident", 8, 2, 9, 1),
    Sketcher.Constraint("Coincident", 9, 2, 10, 1),
    Sketcher.Constraint("Coincident", 10, 2, 11, 1),
    Sketcher.Constraint("Coincident", 11, 2, 8, 1),
    Sketcher.Constraint("Horizontal", 0),
    Sketcher.Constraint("Vertical", 1),
    Sketcher.Constraint("Vertical", 3),
    Sketcher.Constraint("Horizontal", 4),
    Sketcher.Constraint("Vertical", 5),
    Sketcher.Constraint("Vertical", 7),
    Sketcher.Constraint("Vertical", 8),
    Sketcher.Constraint("Horizontal", 9),
    Sketcher.Constraint("Vertical", 10),
    Sketcher.Constraint("Horizontal", 11),
    Sketcher.Constraint("Perpendicular", 2, 6),
    Sketcher.Constraint("Horizontal", 3, 2, 4, 2),
    Sketcher.Constraint("Horizontal", 2, 2, 5, 2),
    Sketcher.Constraint("Horizontal", 1, 2, 6, 2),
    Sketcher.Constraint("Equal", 0, 4),
    Sketcher.Constraint("Equal", 4, 9),
    Sketcher.Constraint("DistanceX", 0, 1, 0, 2, Q("3 mm")),
    Sketcher.Constraint("DistanceY", 1, 1, 1, 2, Q("41.5 mm")),
    Sketcher.Constraint("DistanceY", 8, 2, 8, 1, Q("47.5 mm")),
    Sketcher.Constraint("DistanceX", -1, 1, 0, 2, Q("36 mm")),
    Sketcher.Constraint("DistanceY", -1, 1, 1, 2, Q("160 mm")),
    Sketcher.Constraint("DistanceX", -1, 1, 4, 2, Q("86 mm")),
    Sketcher.Constraint("DistanceX", -1, 1, 8, 2, Q("58 mm")),
    Sketcher.Constraint("DistanceY", -1, 1, 10, 2, Q("162 mm")),
])
pad6 = doc.addObject("PartDesign::Pad", "Pad005")
body6.addObject(pad6)
pad6.Profile = sketch11
pad6.Length = 1

# Sketch on XY plane
sketch12 = doc.addObject("Sketcher::SketchObject", "Sketch011")
body6.addObject(sketch12)
sketch12.AttachmentSupport = (doc.getObject("XY_Plane005"), [""])
sketch12.MapMode = "FlatFace"
sketch12.AttachmentOffset = App.Placement(Vector(0, 0, 111), App.Rotation())
sketch12.addGeometry([
    Part.LineSegment(Vector(55.5, -81, 0), Vector(55.5, -72.2, 0)),  # 0
    Part.LineSegment(Vector(55.5, -72.2, 0), Vector(63.5, -72.2, 0)),  # 1
    Part.LineSegment(Vector(63.5, -72.2, 0), Vector(63.5, -81, 0)),  # 2
    Part.LineSegment(Vector(63.5, -81, 0), Vector(55.5, -81, 0)),  # 3
    Part.Circle(Vector(59.5, -75, 0), Vector(0, 0, 1), 1.8),  # 4
    Part.LineSegment(Vector(55.5, -45.8, 0), Vector(55.5, -35, 0)),  # 5
    Part.LineSegment(Vector(55.5, -35, 0), Vector(63.5, -35, 0)),  # 6
    Part.LineSegment(Vector(63.5, -35, 0), Vector(63.5, -45.8, 0)),  # 7
    Part.LineSegment(Vector(63.5, -45.8, 0), Vector(55.5, -45.8, 0)),  # 8
    Part.Circle(Vector(59.5, -43, 0), Vector(0, 0, 1), 1.8),  # 9
], False)
sketch12.addConstraint([
    Sketcher.Constraint("Coincident", 0, 2, 1, 1),
    Sketcher.Constraint("Coincident", 1, 2, 2, 1),
    Sketcher.Constraint("Coincident", 2, 2, 3, 1),
    Sketcher.Constraint("Coincident", 3, 2, 0, 1),
    Sketcher.Constraint("Coincident", 5, 2, 6, 1),
    Sketcher.Constraint("Coincident", 6, 2, 7, 1),
    Sketcher.Constraint("Coincident", 7, 2, 8, 1),
    Sketcher.Constraint("Coincident", 8, 2, 5, 1),
    Sketcher.Constraint("Vertical", 0),
    Sketcher.Constraint("Horizontal", 1),
    Sketcher.Constraint("Vertical", 2),
    Sketcher.Constraint("Horizontal", 3),
    Sketcher.Constraint("Vertical", 5),
    Sketcher.Constraint("Horizontal", 6),
    Sketcher.Constraint("Vertical", 7),
    Sketcher.Constraint("Horizontal", 8),
    Sketcher.Constraint("Equal", 4, 9),
    Sketcher.Constraint("Vertical", 4, 3, 9, 3),
    Sketcher.Constraint("Vertical", 3, 2, 5, 2),
    Sketcher.Constraint("Vertical", 2, 2, 6, 2),
    Sketcher.Constraint("Diameter", 4, Q("3.5 mm")),
    Sketcher.Constraint("DistanceX", 1, 1, 1, 2, Q("8 mm")),
    Sketcher.Constraint("DistanceY", 4, 3, -1, 1, Q("75 mm")),
    Sketcher.Constraint("DistanceY", 9, 3, -1, 1, Q("43 mm")),
    Sketcher.Constraint("DistanceY", 2, 2, -1, 1, Q("81 mm")),
    Sketcher.Constraint("DistanceY", 5, 2, -1, 1, Q("35 mm")),
    Sketcher.Constraint("DistanceX", 0, 2, 4, 3, Q("4 mm")),
    Sketcher.Constraint("DistanceY", 0, 1, 0, 2, Q("8.75 mm")),
    Sketcher.Constraint("DistanceY", 5, 1, 5, 2, Q("10.75 mm")),
    Sketcher.Constraint("DistanceX", -1, 1, 4, 3, Q("59.5 mm")),
])
pad7 = doc.addObject("PartDesign::Pad", "Pad006")
body6.addObject(pad7)
pad7.Profile = sketch12
pad7.Length = 4
pad7.Reversed = True

# Sketch on XZ plane
sketch13 = doc.addObject("Sketcher::SketchObject", "Sketch012")
body6.addObject(sketch13)
sketch13.AttachmentSupport = (doc.getObject("XZ_Plane005"), [""])
sketch13.MapMode = "FlatFace"
sketch13.AttachmentOffset = App.Placement(Vector(0, 0, 36), App.Rotation())
sketch13.addGeometry([
    Part.LineSegment(Vector(51.2, 118.5, 0), Vector(51.2, 114.5, 0)),
    Part.LineSegment(Vector(51.2, 114.5, 0), Vector(67.8, 114.5, 0)),
    Part.LineSegment(Vector(67.8, 114.5, 0), Vector(67.8, 118.5, 0)),
    Part.LineSegment(Vector(67.8, 118.5, 0), Vector(51.2, 118.5, 0)),
], False)
sketch13.addConstraint([
    Sketcher.Constraint("Coincident", 0, 2, 1, 1),
    Sketcher.Constraint("Coincident", 1, 2, 2, 1),
    Sketcher.Constraint("Coincident", 2, 2, 3, 1),
    Sketcher.Constraint("Coincident", 3, 2, 0, 1),
    Sketcher.Constraint("Vertical", 0),
    Sketcher.Constraint("Horizontal", 1),
    Sketcher.Constraint("Vertical", 2),
    Sketcher.Constraint("Horizontal", 3),
    Sketcher.Constraint("DistanceY", 0, 2, 0, 1, Q("4 mm")),
    Sketcher.Constraint("DistanceX", 1, 1, 1, 2, Q("16.5 mm")),
    Sketcher.Constraint("DistanceY", -1, 1, 0, 2, Q("114.5 mm")),
    Sketcher.Constraint("DistanceX", -1, 1, 0, 2, Q("51.25 mm")),
])
pocket6 = doc.addObject("PartDesign::Pocket", "Pocket005")
body6.addObject(pocket6)
pocket6.Profile = sketch13
pocket6.Length = 2
doc.recompute()

chamfer5 = doc.addObject("PartDesign::Chamfer", "Chamfer004")
body6.addObject(chamfer5)
chamfer5.Base = (pocket6, edges_at(pocket6, [(59.5, -35, 107)]))
chamfer5.Size = 4.99
doc.recompute()

chamfer6 = doc.addObject("PartDesign::Chamfer", "Chamfer005")
body6.addObject(chamfer6)
chamfer6.Base = (chamfer5, edges_at(chamfer5, [
    (63.5, -76.625, 111),
    (63.5, -40.375, 111),
    (55.5, -40.375, 111),
    (55.5, -76.625, 111),
]))
chamfer6.Size = 3.99
doc.recompute()

chamfer7 = doc.addObject("PartDesign::Chamfer", "Chamfer006")
body6.addObject(chamfer7)
chamfer7.Base = (chamfer6, edges_at(chamfer6, [(59.5, -81, 107)]))
chamfer7.Size = 2

doc.recompute()
